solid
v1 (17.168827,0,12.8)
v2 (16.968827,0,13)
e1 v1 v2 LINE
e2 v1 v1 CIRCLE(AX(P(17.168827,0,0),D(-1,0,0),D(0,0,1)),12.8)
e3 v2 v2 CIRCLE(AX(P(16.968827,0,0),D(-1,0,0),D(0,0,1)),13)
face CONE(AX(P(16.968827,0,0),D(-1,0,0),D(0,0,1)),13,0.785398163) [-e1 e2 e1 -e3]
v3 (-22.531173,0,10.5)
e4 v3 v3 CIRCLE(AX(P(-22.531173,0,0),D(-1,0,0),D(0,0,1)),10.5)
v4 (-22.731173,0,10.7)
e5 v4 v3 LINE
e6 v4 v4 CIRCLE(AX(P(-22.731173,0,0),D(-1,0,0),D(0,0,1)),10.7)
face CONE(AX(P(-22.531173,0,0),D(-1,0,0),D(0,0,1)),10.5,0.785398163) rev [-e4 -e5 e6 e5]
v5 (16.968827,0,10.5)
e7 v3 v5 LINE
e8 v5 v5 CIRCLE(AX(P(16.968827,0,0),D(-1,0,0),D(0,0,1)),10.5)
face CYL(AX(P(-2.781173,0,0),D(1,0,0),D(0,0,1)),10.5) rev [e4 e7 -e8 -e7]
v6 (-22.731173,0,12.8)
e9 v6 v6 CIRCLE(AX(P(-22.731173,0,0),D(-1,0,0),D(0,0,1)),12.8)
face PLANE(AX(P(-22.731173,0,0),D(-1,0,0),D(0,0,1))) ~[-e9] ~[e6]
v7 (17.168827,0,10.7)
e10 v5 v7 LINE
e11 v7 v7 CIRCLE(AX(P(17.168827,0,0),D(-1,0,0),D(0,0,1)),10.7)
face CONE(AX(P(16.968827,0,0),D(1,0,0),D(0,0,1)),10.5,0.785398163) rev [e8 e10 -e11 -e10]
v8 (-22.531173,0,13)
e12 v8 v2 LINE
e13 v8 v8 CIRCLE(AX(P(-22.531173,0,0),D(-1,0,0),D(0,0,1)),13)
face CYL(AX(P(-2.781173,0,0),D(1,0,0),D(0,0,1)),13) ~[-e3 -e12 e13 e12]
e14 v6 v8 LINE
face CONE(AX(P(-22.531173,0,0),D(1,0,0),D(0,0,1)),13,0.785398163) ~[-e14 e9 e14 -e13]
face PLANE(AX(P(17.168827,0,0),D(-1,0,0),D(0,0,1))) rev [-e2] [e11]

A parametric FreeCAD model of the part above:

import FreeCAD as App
import Part
import Sketcher

V = App.Vector
Q = App.Units.Quantity


def edges_at(feature, points):
    """Names of the edges that pass closest to the given points."""
    edges = feature.Shape.Edges
    near = lambda p: min(range(len(edges)), key=lambda i: edges[i].distToShape(Part.Vertex(*p))[0])
    return sorted({f"Edge{near(p) + 1}" for p in points})


def add_polygon(sketch, points):
    """Adds a closed chain of lines whose ends are joined by coincident constraints."""
    first, n = sketch.GeometryCount, len(points)
    for a, b in zip(points, points[1:] + points[:1]):
        sketch.addGeometry(Part.LineSegment(App.Vector(*a, 0), App.Vector(*b, 0)), False)
    for i in range(n):
        sketch.addConstraint(Sketcher.Constraint("Coincident", first + i, 2, first + (i + 1) % n, 1))

doc = App.newDocument("Part")
params = doc.addObject("Spreadsheet::Sheet", "Params")
for row, (alias, value) in enumerate([
    ("sketch1_width", "39.9 mm"),
    ("sketch1_height", "2.5 mm"),
    ("revolution_angle", "360 deg"),
    ("chamfer_size", "0.2 mm"),
], start=1):
    params.set(f"A{row}", alias)
    params.set(f"B{row}", "=" + value)
    params.setAlias(f"B{row}", alias)

body = doc.addObject("PartDesign::Body", "Body")

sketch1 = body.newObject("Sketcher::SketchObject", "Sketch")
sketch1.AttachmentSupport = (doc.getObject("XZ_Plane"), [""])
sketch1.MapMode = "FlatFace"
add_polygon(sketch1, [(-22.7, 13), (-22.7, 10.5), (17.2, 10.5), (17.2, 13)])
sketch1.addConstraint([
    Sketcher.Constraint("Vertical", 0),
    Sketcher.Constraint("Horizontal", 1),
    Sketcher.Constraint("Vertical", 2),
    Sketcher.Constraint("Horizontal", 3),
    Sketcher.Constraint("DistanceX", 1, 1, 1, 2, Q("39.9 mm")),
    Sketcher.Constraint("DistanceY", 0, 2, 0, 1, Q("2.5 mm")),
    Sketcher.Constraint("DistanceY", -1, 1, 2, 2, Q("13 mm")),
    Sketcher.Constraint("DistanceX", 0, 2, -1, 1, Q("22.731173 mm")),
])
sketch1.setExpression("Constraints[8]", "Params.sketch1_width")
sketch1.setExpression("Constraints[9]", "Params.sketch1_height")
revolution = body.newObject("PartDesign::Revolution", "Revolution")
revolution.Profile = sketch1
revolution.ReferenceAxis = (sketch1, ["H_Axis"])
revolution.setExpression("Angle", "Params.revolution_angle")
doc.recompute()

chamfer = body.newObject("PartDesign::Chamfer", "Chamfer")
chamfer.Base = (revolution, edges_at(revolution, [
    (17.169, 0, -13),
    (17.169, 0, -10.5),
    (-22.731, 0, -10.5),
    (-22.731, 0, -13),
]))
chamfer.setExpression("Size", "Params.chamfer_size")

doc.recompute()
